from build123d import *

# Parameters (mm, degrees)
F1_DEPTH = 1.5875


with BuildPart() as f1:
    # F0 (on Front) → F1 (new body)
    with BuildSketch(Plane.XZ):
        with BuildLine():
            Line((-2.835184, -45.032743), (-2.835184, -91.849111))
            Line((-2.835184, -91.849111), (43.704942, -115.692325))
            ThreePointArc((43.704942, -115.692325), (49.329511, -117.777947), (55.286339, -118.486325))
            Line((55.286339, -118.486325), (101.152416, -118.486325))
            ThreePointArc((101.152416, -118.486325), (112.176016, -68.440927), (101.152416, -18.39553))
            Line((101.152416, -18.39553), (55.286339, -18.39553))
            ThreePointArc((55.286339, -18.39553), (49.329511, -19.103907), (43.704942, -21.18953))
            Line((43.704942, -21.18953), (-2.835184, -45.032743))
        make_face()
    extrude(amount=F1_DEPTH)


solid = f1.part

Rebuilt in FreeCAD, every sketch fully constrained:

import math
import FreeCAD as App
import Part
import Sketcher
Q = App.Units.Quantity

doc = App.newDocument("Part")
body = doc.addObject("PartDesign::Body", "Body")

# Sketch on XZ plane
sketch1 = doc.addObject("Sketcher::SketchObject", "Sketch")
body.addObject(sketch1)
sketch1.AttachmentSupport = (doc.XZ_Plane, [""])
sketch1.MapMode = "FlatFace"
sketch1.addGeometry([
    Part.LineSegment(App.Vector(-2.835184, -45.032743, 0), App.Vector(-2.835184, -91.849111, 0)),  # 0
    Part.LineSegment(App.Vector(-2.835184, -91.849111, 0), App.Vector(43.704942, -115.692325, 0)),  # 1
    Part.ArcOfCircle(Part.Circle(App.Vector(55.286339, -93.086325, 0), App.Vector(0, 0, 1), 25.4), math.radians(-117.126753), math.radians(-90)),  # 2
    Part.LineSegment(App.Vector(55.286339, -118.486325, 0), App.Vector(101.152416, -118.486325, 0)),  # 3
    Part.ArcOfCircle(Part.Circle(App.Vector(-6.934872, -68.440928, 0), App.Vector(0, 0, 1), 119.110888), math.radians(-24.844566), math.radians(24.844566)),  # 4
    Part.LineSegment(App.Vector(101.152416, -18.39553, 0), App.Vector(55.286339, -18.39553, 0)),  # 5
    Part.ArcOfCircle(Part.Circle(App.Vector(55.286331, -43.795496, 0), App.Vector(0, 0, 1), 25.399966), math.radians(89.999982), math.radians(117.126772)),  # 6
    Part.LineSegment(App.Vector(43.704942, -21.18953, 0), App.Vector(-2.835184, -45.032743, 0)),  # 7
], False)
sketch1.addConstraint([
    Sketcher.Constraint("Coincident", 0, 2, 1, 1),
    Sketcher.Constraint("Tangent", 1, 2, 2, 1),
    Sketcher.Constraint("Tangent", 2, 2, 3, 1),
    Sketcher.Constraint("Coincident", 3, 2, 4, 1),
    Sketcher.Constraint("Coincident", 4, 2, 5, 1),
    Sketcher.Constraint("Tangent", 5, 2, 6, 1),
    Sketcher.Constraint("Tangent", 6, 2, 7, 1),
    Sketcher.Constraint("Coincident", 7, 2, 0, 1),
    Sketcher.Constraint("Vertical", 0),
    Sketcher.Constraint("Horizontal", 3),
    Sketcher.Constraint("Horizontal", 5),
    Sketcher.Constraint("Vertical", 3, 2, 4, 2),
    Sketcher.Constraint("Vertical", 2, 2, 5, 2),
    Sketcher.Constraint("Vertical", 1, 2, 6, 2),
    Sketcher.Constraint("Equal", 1, 7),
    Sketcher.Constraint("Radius", 2, Q("1 in")),
    Sketcher.Constraint("DistanceY", 1, 2, 2, 3, Q("0.89 in")),
    Sketcher.Constraint("DistanceX", 0, 2, 3, 2, Q("4.094 in")),
    Sketcher.Constraint("Radius", 4, 119.110888),
    Sketcher.Constraint("DistanceX", 3, 1, 3, 2, 45.866077),
    Sketcher.Constraint("DistanceY", 0, 2, 0, 1, 46.816368),
    Sketcher.Constraint("DistanceX", -1, 1, 2, 3, 55.286339),
    Sketcher.Constraint("DistanceY", 0, 2, -1, 1, 91.849111),
])
pad1 = doc.addObject("PartDesign::Pad", "Pad")
body.addObject(pad1)
pad1.Profile = sketch1
pad1.Length = Q("0.0625 in")

doc.recompute()
